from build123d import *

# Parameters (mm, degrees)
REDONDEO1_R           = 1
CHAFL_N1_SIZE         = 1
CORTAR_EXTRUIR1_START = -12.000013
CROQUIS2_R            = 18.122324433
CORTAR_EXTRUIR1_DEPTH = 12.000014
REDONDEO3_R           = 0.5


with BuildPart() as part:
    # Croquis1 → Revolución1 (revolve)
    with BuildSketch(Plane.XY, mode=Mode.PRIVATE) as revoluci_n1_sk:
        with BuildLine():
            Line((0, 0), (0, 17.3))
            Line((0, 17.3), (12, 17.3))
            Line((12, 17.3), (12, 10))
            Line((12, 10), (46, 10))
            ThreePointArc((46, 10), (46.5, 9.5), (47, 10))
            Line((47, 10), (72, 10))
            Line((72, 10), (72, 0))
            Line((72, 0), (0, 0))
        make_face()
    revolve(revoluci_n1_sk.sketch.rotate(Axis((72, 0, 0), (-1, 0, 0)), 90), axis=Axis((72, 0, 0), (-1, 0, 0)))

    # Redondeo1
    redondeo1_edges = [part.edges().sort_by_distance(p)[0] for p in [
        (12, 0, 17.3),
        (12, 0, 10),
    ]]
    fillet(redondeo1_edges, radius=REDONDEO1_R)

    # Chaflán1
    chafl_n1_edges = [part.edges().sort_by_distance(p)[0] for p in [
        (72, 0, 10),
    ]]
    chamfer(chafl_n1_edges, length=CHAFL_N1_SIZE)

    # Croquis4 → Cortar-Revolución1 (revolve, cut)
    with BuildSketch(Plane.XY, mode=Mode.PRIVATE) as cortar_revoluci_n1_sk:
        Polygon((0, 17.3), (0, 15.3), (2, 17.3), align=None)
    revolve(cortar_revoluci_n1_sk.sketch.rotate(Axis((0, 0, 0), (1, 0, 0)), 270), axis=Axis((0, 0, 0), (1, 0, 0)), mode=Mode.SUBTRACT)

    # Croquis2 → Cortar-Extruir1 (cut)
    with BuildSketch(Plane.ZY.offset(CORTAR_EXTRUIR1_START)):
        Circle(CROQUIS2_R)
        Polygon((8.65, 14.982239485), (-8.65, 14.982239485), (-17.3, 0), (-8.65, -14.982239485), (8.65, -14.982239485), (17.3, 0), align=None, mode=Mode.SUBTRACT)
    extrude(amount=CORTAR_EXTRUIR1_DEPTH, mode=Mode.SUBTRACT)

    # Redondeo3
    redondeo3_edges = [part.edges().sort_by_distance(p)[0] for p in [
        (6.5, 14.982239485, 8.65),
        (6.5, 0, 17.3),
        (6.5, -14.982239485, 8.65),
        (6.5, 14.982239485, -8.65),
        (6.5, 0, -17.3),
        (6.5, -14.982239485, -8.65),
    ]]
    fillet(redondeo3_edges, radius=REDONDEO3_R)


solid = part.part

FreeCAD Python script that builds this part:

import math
import FreeCAD as App
import Part
import Sketcher
from FreeCAD import Vector
Q = App.Units.Quantity


def edges_at(feature, points):
    """Names of the edges that pass closest to the given points."""
    edges = feature.Shape.Edges
    near = lambda p: min(range(len(edges)), key=lambda i: edges[i].distToShape(Part.Vertex(*p))[0])
    return sorted({f"Edge{near(p) + 1}" for p in points})


def add_polygon(sketch, points):
    """Adds a closed chain of lines whose ends are joined by coincident constraints."""
    first, n = sketch.GeometryCount, len(points)
    for a, b in zip(points, points[1:] + points[:1]):
        sketch.addGeometry(Part.LineSegment(App.Vector(*a, 0), App.Vector(*b, 0)), False)
    for i in range(n):
        sketch.addConstraint(Sketcher.Constraint("Coincident", first + i, 2, first + (i + 1) % n, 1))

doc = App.newDocument("Part")
body = doc.addObject("PartDesign::Body", "Body")

# Sketch on XY plane
sketch1 = body.newObject("Sketcher::SketchObject", "Sketch")
sketch1.AttachmentSupport = (doc.getObject("XY_Plane"), [""])
sketch1.MapMode = "FlatFace"
sketch1.addGeometry(Part.LineSegment(Vector(0, 17.3, 0), Vector(0, 0, 0)), False)
sketch1.addGeometry(Part.LineSegment(Vector(0, 0, 0), Vector(72, 0, 0)), False)
sketch1.addGeometry(Part.LineSegment(Vector(72, 0, 0), Vector(72, 10, 0)), False)
sketch1.addGeometry(Part.LineSegment(Vector(72, 10, 0), Vector(47, 10, 0)), False)
sketch1.addGeometry(Part.ArcOfCircle(Part.Circle(Vector(46.5, 10, 0), Vector(0, 0, 1), 0.5), math.radians(180), math.radians(360)), False)
sketch1.addGeometry(Part.LineSegment(Vector(46, 10, 0), Vector(12, 10, 0)), False)
sketch1.addGeometry(Part.LineSegment(Vector(12, 10, 0), Vector(12, 17.3, 0)), False)
sketch1.addGeometry(Part.LineSegment(Vector(12, 17.3, 0), Vector(0, 17.3, 0)), False)
sketch1.addConstraint(Sketcher.Constraint("Coincident", 0, 2, 1, 1))
sketch1.addConstraint(Sketcher.Constraint("Coincident", 1, 2, 2, 1))
sketch1.addConstraint(Sketcher.Constraint("Coincident", 2, 2, 3, 1))
sketch1.addConstraint(Sketcher.Constraint("Coincident", 3, 2, 4, 2))
sketch1.addConstraint(Sketcher.Constraint("Coincident", 4, 1, 5, 1))
sketch1.addConstraint(Sketcher.Constraint("Coincident", 5, 2, 6, 1))
sketch1.addConstraint(Sketcher.Constraint("Coincident", 6, 2, 7, 1))
sketch1.addConstraint(Sketcher.Constraint("Coincident", 7, 2, 0, 1))
sketch1.addConstraint(Sketcher.Constraint("Vertical", 0))
sketch1.addConstraint(Sketcher.Constraint("Horizontal", 1))
sketch1.addConstraint(Sketcher.Constraint("Vertical", 2))
sketch1.addConstraint(Sketcher.Constraint("Horizontal", 3))
sketch1.addConstraint(Sketcher.Constraint("Horizontal", 5))
sketch1.addConstraint(Sketcher.Constraint("Vertical", 6))
sketch1.addConstraint(Sketcher.Constraint("Horizontal", 7))
sketch1.addConstraint(Sketcher.Constraint("Coincident", 0, 2, -1, 1))
sketch1.addConstraint(Sketcher.Constraint("Horizontal", 4, 3, 2, 2))
sketch1.addConstraint(Sketcher.Constraint("Horizontal", 3, 2, 4, 1))
sketch1.addConstraint(Sketcher.Constraint("Radius", 4, 0.5))
sketch1.addConstraint(Sketcher.Constraint("DistanceX", 1, 1, 1, 2, 72.0))
sketch1.addConstraint(Sketcher.Constraint("DistanceX", 3, 2, 3, 1, 25.0))
sketch1.addConstraint(Sketcher.Constraint("DistanceX", 5, 2, 5, 1, 34.0))
sketch1.addConstraint(Sketcher.Constraint("DistanceY", 2, 1, 2, 2, 10.0))
sketch1.addConstraint(Sketcher.Constraint("DistanceY", 0, 2, 0, 1, 17.3))
revolution = body.newObject("PartDesign::Revolution", "Revolution")
revolution.Profile = sketch1
revolution.ReferenceAxis = (sketch1, ["H_Axis"])
revolution.Angle = 360
doc.recompute()

fillet = body.newObject("PartDesign::Fillet", "Fillet")
fillet.Base = (revolution, edges_at(revolution, [(12, 0, 17.3), (12, 0, 10)]))
fillet.Radius = 1
doc.recompute()

chamfer = body.newObject("PartDesign::Chamfer", "Chamfer")
chamfer.Base = (fillet, edges_at(fillet, [(72, 0, 10)]))
chamfer.Size = 1

# Sketch on XY plane
sketch2 = body.newObject("Sketcher::SketchObject", "Sketch001")
sketch2.AttachmentSupport = (doc.getObject("XY_Plane"), [""])
sketch2.MapMode = "FlatFace"
add_polygon(sketch2, [(0, 17.3), (0, 15.3), (2, 17.3)])  # lines 0-2
sketch2.addConstraint(Sketcher.Constraint("Vertical", 0))
sketch2.addConstraint(Sketcher.Constraint("Horizontal", 2))
sketch2.addConstraint(Sketcher.Constraint("PointOnObject", 0, 2, -2))
sketch2.addConstraint(Sketcher.Constraint("Equal", 2, 0))
sketch2.addConstraint(Sketcher.Constraint("DistanceX", 2, 2, 2, 1, 2.0))
sketch2.addConstraint(Sketcher.Constraint("DistanceY", -1, 1, 0, 2, 15.3))
groove = body.newObject("PartDesign::Groove", "Groove")
groove.Profile = sketch2
groove.ReferenceAxis = (sketch2, ["H_Axis"])
groove.Angle = 360

# Sketch on YZ plane
sketch3 = body.newObject("Sketcher::SketchObject", "Sketch002")
sketch3.AttachmentSupport = (doc.getObject("YZ_Plane"), [""])
sketch3.MapMode = "FlatFace"
sketch3.AttachmentOffset = App.Placement(Vector(0, 0, 12.000013), App.Rotation())
sketch3.addGeometry(Part.Circle(Vector(0, 0, 0), Vector(0, 0, 1), 18.122324), False)  # 0
add_polygon(sketch3, [(14.982239, -8.65), (14.982239, 8.65), (0, 17.3), (-14.982239, 8.65), (-14.982239, -8.65), (0, -17.3)])  # lines 1-6
sketch3.addConstraint(Sketcher.Constraint("Vertical", 1))
sketch3.addConstraint(Sketcher.Constraint("Vertical", 4))
sketch3.addConstraint(Sketcher.Constraint("Coincident", 0, 3, -1, 1))
sketch3.addConstraint(Sketcher.Constraint("Symmetric", 1, 2, 4, 2, -1, 1))
sketch3.addConstraint(Sketcher.Constraint("Symmetric", 2, 2, 5, 2, -1, 1))
sketch3.addConstraint(Sketcher.Constraint("PointOnObject", 2, 2, -2))
sketch3.addConstraint(Sketcher.Constraint("Parallel", 3, 6))
sketch3.addConstraint(Sketcher.Constraint("Horizontal", 1, 2, 3, 2))
sketch3.addConstraint(Sketcher.Constraint("Angle", 2, Q("150 deg")))
sketch3.addConstraint(Sketcher.Constraint("DistanceY", 1, 1, 1, 2, 17.3))
sketch3.addConstraint(Sketcher.Constraint("Distance", 2, 17.3))
sketch3.addConstraint(Sketcher.Constraint("Diameter", 0, 36.244649))
pocket1 = body.newObject("PartDesign::Pocket", "Pocket")
pocket1.Profile = sketch3
pocket1.Length = 12.000014
doc.recompute()

fillet2 = body.newObject("PartDesign::Fillet", "Fillet001")
fillet2.Base = (pocket1, edges_at(pocket1, [
    (6.5, 14.982, 8.65),
    (6.5, 0, 17.3),
    (6.5, -14.982, 8.65),
    (6.5, 14.982, -8.65),
    (6.5, 0, -17.3),
    (6.5, -14.982, -8.65),
]))
fillet2.Radius = 0.5

doc.recompute()
